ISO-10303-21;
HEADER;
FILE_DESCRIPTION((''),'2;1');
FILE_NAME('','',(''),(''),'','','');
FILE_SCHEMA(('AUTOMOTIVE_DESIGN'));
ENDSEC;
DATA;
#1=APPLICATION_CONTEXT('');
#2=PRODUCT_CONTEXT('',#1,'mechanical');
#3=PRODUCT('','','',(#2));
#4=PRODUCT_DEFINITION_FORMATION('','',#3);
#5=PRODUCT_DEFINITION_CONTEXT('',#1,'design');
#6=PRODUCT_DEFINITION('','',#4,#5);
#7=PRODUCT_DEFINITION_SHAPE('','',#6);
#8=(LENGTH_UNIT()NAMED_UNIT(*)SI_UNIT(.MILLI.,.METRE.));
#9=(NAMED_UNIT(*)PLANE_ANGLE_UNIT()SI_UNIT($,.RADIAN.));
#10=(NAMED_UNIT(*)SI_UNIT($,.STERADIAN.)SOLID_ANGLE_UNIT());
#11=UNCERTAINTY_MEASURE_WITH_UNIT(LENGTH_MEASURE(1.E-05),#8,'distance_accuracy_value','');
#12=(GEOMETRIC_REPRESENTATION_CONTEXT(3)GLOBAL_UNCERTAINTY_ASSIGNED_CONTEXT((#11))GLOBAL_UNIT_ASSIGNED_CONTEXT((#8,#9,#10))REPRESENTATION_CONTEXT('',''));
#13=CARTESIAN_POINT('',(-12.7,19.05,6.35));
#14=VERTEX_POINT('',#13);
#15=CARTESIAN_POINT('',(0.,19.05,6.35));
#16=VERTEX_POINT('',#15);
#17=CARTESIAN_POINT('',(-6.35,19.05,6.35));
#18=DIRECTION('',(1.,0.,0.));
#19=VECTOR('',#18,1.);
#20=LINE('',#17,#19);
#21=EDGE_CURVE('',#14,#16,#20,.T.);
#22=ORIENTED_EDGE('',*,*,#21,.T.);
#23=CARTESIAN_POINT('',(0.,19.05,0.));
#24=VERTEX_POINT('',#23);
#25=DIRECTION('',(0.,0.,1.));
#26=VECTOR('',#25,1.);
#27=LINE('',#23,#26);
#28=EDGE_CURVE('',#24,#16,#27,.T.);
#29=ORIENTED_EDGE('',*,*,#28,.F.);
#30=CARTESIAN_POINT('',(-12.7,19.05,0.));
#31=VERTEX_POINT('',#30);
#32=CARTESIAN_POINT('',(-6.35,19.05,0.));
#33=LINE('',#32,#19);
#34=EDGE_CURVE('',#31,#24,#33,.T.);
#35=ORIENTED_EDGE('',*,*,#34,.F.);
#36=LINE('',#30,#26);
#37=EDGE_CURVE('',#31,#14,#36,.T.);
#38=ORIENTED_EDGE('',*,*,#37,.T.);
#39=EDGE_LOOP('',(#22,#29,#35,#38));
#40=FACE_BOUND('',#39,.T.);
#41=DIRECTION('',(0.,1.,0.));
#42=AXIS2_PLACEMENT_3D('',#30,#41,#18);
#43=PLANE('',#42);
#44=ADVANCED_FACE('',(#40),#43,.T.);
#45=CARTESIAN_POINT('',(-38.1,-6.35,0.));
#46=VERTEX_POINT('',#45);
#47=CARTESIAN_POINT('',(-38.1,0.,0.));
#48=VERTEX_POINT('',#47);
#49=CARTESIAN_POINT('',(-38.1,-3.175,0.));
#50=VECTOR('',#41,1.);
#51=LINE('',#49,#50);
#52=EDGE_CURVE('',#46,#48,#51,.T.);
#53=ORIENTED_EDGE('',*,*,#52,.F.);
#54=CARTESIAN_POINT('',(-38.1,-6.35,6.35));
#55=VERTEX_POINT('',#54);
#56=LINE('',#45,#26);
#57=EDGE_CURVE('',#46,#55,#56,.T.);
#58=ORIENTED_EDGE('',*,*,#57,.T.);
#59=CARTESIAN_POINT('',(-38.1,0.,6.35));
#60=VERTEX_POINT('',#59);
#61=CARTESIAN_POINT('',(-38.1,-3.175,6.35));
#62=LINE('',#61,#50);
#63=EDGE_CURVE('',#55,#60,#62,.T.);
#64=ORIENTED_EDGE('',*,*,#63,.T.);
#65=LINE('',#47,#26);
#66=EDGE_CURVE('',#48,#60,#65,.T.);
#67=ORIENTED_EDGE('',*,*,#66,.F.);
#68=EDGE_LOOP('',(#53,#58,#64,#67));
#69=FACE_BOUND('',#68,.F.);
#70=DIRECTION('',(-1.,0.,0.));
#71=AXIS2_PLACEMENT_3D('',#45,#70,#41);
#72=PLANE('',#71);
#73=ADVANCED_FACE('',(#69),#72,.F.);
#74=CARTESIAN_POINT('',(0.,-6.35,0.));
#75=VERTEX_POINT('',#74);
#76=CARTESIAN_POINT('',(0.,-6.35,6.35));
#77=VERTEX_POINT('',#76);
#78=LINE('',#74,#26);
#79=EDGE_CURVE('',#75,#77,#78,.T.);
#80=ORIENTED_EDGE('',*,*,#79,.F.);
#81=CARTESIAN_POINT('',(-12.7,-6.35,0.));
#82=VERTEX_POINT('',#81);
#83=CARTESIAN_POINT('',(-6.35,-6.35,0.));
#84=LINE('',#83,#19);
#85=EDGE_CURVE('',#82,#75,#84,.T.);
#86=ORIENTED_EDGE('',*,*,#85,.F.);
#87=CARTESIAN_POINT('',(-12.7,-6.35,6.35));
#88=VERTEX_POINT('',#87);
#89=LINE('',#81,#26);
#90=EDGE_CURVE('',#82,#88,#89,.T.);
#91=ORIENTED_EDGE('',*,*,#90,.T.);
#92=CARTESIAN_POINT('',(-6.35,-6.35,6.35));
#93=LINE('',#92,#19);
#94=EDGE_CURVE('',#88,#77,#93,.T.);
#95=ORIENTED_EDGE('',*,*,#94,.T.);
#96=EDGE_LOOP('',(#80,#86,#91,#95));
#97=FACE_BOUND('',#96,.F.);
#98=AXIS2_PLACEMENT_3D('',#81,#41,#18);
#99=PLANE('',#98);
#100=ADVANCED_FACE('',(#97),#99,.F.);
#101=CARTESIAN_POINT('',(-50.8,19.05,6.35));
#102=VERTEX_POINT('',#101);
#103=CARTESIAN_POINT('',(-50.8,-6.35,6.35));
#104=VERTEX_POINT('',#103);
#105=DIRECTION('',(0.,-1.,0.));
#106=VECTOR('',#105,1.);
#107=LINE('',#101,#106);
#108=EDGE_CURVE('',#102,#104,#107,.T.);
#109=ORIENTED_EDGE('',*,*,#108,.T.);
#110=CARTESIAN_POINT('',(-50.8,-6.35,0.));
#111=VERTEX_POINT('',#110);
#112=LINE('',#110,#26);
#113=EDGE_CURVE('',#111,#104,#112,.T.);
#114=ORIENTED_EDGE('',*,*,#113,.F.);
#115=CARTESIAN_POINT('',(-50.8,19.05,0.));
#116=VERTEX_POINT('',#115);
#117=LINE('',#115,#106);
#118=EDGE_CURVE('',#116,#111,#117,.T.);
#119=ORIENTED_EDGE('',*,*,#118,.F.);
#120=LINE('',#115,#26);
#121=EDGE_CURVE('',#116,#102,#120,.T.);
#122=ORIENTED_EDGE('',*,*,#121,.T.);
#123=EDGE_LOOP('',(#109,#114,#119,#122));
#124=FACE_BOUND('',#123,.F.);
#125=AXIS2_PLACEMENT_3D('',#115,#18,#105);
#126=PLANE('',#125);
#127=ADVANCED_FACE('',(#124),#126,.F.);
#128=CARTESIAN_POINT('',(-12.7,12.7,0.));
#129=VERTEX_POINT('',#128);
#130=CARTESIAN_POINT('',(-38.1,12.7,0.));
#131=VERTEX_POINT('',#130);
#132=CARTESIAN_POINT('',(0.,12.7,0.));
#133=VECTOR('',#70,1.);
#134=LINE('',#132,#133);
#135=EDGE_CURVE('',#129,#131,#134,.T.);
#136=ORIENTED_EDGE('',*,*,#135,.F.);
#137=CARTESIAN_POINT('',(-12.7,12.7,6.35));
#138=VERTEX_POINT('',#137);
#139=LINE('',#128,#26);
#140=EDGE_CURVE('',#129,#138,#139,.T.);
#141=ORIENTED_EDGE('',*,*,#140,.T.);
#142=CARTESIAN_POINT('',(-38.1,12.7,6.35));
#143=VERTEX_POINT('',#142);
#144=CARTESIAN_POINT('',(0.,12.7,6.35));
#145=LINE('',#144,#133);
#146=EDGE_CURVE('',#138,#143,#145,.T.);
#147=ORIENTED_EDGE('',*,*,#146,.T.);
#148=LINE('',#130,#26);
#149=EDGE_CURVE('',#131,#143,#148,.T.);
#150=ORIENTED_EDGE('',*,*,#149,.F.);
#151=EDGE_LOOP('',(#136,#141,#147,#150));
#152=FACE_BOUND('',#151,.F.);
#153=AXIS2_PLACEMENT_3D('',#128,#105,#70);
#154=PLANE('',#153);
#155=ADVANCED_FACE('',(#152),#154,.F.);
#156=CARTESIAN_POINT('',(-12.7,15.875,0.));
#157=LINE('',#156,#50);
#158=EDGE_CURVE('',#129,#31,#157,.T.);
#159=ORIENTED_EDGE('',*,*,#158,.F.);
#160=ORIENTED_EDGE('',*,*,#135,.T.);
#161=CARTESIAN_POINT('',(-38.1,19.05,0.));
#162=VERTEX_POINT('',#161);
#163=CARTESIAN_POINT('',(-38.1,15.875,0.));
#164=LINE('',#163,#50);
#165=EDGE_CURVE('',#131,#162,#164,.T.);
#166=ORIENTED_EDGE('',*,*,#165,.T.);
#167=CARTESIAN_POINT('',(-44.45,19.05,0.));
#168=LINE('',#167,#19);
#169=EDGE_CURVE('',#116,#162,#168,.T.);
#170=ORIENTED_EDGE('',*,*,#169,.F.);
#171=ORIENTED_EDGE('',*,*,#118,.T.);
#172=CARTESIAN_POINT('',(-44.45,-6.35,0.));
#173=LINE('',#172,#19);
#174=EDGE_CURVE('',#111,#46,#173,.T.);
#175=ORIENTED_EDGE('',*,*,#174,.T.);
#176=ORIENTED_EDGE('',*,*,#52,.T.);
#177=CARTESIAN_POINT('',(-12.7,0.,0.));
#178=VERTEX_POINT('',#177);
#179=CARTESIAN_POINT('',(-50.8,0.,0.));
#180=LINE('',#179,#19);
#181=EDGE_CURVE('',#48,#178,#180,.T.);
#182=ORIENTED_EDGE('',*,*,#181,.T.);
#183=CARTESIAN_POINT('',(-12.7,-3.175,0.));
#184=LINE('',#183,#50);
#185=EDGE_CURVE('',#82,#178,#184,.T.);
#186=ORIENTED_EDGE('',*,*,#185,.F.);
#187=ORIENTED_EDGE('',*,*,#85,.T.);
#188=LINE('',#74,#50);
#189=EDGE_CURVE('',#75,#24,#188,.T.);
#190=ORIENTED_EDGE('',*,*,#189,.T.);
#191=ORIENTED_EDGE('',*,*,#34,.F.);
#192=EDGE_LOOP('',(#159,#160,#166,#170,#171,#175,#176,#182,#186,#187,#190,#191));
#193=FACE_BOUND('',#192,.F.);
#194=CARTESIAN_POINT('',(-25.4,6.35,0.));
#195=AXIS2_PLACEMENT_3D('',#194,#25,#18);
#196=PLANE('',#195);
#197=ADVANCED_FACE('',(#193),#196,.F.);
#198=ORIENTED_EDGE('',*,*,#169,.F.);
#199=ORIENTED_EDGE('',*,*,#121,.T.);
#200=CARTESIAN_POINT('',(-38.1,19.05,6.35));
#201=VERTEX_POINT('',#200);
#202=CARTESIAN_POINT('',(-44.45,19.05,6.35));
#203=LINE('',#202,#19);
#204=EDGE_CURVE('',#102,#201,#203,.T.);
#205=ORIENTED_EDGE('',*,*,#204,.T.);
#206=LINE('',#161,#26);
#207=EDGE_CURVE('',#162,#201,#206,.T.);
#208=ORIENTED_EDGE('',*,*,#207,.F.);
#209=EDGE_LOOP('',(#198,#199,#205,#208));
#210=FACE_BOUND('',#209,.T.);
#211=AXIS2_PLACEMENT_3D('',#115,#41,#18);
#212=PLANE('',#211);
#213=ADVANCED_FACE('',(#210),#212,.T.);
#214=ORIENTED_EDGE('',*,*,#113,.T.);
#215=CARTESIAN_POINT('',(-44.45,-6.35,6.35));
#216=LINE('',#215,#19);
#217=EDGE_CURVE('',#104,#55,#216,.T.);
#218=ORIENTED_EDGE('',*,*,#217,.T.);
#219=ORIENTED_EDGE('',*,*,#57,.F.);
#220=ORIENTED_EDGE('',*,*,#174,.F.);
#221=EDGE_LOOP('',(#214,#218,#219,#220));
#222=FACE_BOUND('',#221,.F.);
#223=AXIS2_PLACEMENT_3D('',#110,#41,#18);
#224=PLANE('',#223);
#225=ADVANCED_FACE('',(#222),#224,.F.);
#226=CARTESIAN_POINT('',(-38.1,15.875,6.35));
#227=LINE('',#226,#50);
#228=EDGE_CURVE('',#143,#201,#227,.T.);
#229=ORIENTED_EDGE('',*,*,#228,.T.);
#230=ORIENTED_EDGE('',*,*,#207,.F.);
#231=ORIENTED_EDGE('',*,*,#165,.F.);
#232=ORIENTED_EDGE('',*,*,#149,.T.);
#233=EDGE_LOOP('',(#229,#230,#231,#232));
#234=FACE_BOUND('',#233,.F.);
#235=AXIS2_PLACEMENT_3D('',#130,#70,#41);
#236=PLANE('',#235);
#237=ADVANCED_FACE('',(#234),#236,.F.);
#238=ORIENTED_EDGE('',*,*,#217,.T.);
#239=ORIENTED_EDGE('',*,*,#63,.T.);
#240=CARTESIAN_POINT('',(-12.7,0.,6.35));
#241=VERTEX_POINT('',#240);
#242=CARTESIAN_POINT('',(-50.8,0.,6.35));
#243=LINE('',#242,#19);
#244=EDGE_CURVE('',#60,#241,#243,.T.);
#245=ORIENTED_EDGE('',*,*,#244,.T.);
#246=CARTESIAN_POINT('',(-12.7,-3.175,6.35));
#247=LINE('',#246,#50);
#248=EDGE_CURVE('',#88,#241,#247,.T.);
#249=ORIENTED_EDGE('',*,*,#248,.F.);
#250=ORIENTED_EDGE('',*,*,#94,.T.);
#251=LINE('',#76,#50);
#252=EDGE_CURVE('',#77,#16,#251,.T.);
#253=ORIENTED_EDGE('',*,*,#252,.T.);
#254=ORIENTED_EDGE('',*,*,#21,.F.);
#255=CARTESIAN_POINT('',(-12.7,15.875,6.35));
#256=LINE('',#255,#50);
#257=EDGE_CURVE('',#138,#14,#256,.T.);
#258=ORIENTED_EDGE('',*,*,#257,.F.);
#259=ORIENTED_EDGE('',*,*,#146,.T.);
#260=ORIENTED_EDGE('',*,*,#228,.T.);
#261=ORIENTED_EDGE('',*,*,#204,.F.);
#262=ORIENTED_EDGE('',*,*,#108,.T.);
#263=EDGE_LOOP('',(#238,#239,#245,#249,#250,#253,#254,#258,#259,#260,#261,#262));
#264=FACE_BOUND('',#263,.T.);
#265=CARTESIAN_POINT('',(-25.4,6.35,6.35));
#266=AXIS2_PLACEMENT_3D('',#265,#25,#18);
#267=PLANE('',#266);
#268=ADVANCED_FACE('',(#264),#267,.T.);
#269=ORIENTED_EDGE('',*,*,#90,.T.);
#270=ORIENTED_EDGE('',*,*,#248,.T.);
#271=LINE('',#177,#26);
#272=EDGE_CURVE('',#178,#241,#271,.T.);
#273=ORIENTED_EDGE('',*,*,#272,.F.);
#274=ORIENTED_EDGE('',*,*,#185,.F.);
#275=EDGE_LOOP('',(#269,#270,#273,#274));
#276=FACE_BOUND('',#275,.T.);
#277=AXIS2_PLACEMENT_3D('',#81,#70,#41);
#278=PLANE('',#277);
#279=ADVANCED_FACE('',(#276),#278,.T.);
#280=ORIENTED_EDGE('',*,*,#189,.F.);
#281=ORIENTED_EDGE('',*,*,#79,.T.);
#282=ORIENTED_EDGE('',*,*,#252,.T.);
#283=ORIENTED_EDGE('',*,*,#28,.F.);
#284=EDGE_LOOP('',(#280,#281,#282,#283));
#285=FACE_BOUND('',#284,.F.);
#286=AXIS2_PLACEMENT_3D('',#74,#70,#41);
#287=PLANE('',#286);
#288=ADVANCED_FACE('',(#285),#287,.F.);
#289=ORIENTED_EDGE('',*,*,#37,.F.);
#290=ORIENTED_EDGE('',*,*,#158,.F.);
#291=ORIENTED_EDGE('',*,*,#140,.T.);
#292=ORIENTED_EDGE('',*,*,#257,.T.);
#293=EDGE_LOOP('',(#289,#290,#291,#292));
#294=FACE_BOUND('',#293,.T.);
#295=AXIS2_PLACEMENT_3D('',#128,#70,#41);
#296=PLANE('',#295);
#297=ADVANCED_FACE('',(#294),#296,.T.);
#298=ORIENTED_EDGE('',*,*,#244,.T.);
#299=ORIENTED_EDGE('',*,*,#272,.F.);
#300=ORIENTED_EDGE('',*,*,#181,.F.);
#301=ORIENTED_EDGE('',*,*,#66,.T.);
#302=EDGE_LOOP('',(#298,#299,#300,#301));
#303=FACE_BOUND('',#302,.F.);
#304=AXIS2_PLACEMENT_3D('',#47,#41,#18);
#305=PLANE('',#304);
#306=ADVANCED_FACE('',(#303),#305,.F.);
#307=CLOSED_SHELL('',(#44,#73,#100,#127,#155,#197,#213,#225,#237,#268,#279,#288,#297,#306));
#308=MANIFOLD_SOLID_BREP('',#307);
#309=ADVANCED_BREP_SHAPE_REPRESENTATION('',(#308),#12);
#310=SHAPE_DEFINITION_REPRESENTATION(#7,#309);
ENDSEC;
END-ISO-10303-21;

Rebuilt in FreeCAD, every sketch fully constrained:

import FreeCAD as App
import Part
import Sketcher

V = App.Vector
Q = App.Units.Quantity


def add_polygon(sketch, points):
    """Adds a closed chain of lines whose ends are joined by coincident constraints."""
    first, n = sketch.GeometryCount, len(points)
    for a, b in zip(points, points[1:] + points[:1]):
        sketch.addGeometry(Part.LineSegment(App.Vector(*a, 0), App.Vector(*b, 0)), False)
    for i in range(n):
        sketch.addConstraint(Sketcher.Constraint("Coincident", first + i, 2, first + (i + 1) % n, 1))

doc = App.newDocument("Part")
body = doc.addObject("PartDesign::Body", "Body")

sketch1 = body.newObject("Sketcher::SketchObject", "Sketch")
sketch1.AttachmentSupport = (doc.getObject("XY_Plane"), [""])
sketch1.MapMode = "FlatFace"
add_polygon(sketch1, [(0, 19), (-13, 19), (-13, 13), (-38, 13), (-38, 19), (-51, 19), (-51, -6), (-38, -6), (-38, 0), (-13, 0), (-13, -6), (0, -6)])
sketch1.addConstraint([
    Sketcher.Constraint("Horizontal", 0),
    Sketcher.Constraint("Vertical", 1),
    Sketcher.Constraint("Horizontal", 2),
    Sketcher.Constraint("Vertical", 3),
    Sketcher.Constraint("Horizontal", 4),
    Sketcher.Constraint("Vertical", 5),
    Sketcher.Constraint("Horizontal", 6),
    Sketcher.Constraint("Vertical", 7),
    Sketcher.Constraint("Horizontal", 8),
    Sketcher.Constraint("Vertical", 9),
    Sketcher.Constraint("Horizontal", 10),
    Sketcher.Constraint("Vertical", 11),
    Sketcher.Constraint("PointOnObject", 7, 2, -1),
    Sketcher.Constraint("PointOnObject", 10, 2, -2),
    Sketcher.Constraint("Horizontal", 0, 2, 3, 2),
    Sketcher.Constraint("Horizontal", 6, 2, 9, 2),
    Sketcher.Constraint("Vertical", 3, 2, 6, 2),
    Sketcher.Constraint("Vertical", 1, 2, 8, 2),
    Sketcher.Constraint("Equal", 0, 4),
    Sketcher.Constraint("Equal", 8, 5),
    Sketcher.Constraint("Equal", 3, 7),
    Sketcher.Constraint("DistanceX", 2, 2, 2, 1, Q("1 in")),
    Sketcher.Constraint("DistanceX", 0, 2, 0, 1, Q("0.5 in")),
    Sketcher.Constraint("DistanceY", 1, 2, 1, 1, Q("0.25 in")),
])
pad1 = body.newObject("PartDesign::Pad", "Pad")
pad1.Profile = sketch1
pad1.Length = Q("0.25 in")

doc.recompute()
